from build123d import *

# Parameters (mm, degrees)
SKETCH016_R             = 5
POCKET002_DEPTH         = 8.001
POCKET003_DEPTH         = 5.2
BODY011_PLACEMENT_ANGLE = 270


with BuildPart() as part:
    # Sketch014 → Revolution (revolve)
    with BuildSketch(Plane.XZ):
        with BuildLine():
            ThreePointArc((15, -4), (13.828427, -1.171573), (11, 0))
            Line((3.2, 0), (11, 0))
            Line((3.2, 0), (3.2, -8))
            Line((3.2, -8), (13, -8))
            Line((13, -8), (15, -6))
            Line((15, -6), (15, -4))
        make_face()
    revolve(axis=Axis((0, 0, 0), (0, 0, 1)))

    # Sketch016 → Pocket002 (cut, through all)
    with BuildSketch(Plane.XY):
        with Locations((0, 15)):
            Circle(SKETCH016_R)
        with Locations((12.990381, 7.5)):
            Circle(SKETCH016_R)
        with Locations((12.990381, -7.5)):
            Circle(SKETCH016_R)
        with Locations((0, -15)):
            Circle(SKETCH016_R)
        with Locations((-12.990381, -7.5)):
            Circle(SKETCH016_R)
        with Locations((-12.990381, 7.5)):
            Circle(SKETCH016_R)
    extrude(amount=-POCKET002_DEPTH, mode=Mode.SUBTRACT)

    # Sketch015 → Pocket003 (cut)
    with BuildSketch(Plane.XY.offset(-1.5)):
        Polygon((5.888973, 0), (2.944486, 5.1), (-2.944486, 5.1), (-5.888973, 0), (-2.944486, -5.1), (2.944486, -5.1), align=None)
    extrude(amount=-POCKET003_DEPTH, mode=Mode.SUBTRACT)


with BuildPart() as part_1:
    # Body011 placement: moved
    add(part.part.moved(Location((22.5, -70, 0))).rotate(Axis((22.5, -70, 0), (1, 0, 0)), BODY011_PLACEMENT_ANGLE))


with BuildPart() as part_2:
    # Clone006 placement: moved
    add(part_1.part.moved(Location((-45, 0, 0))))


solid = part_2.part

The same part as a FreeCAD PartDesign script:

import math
import FreeCAD as App
import Part
import Sketcher
Q = App.Units.Quantity


def add_polygon(sketch, points):
    """Adds a closed chain of lines whose ends are joined by coincident constraints."""
    first, n = sketch.GeometryCount, len(points)
    for a, b in zip(points, points[1:] + points[:1]):
        sketch.addGeometry(Part.LineSegment(App.Vector(*a, 0), App.Vector(*b, 0)), False)
    for i in range(n):
        sketch.addConstraint(Sketcher.Constraint("Coincident", first + i, 2, first + (i + 1) % n, 1))

doc = App.newDocument("Part")
body = doc.addObject("PartDesign::Body", "Body")

sketch1 = body.newObject("Sketcher::SketchObject", "Sketch")
sketch1.AttachmentSupport = (doc.getObject("XZ_Plane"), [""])
sketch1.MapMode = "FlatFace"
sketch1.addGeometry([
    Part.ArcOfCircle(Part.Circle(App.Vector(11, -4, 0), App.Vector(0, 0, 1), 4), math.radians(0), math.radians(90)),
    Part.LineSegment(App.Vector(11, 0, 0), App.Vector(3.2, 0, 0)),
    Part.LineSegment(App.Vector(3.2, 0, 0), App.Vector(3.2, -8, 0)),
    Part.LineSegment(App.Vector(3.2, -8, 0), App.Vector(13, -8, 0)),
    Part.LineSegment(App.Vector(13, -8, 0), App.Vector(15, -6, 0)),
    Part.LineSegment(App.Vector(15, -6, 0), App.Vector(15, -4, 0)),
], False)
sketch1.addConstraint([
    Sketcher.Constraint("Tangent", 0, 2, 1, 1),
    Sketcher.Constraint("Coincident", 1, 2, 2, 1),
    Sketcher.Constraint("Coincident", 2, 2, 3, 1),
    Sketcher.Constraint("Coincident", 3, 2, 4, 1),
    Sketcher.Constraint("Coincident", 4, 2, 5, 1),
    Sketcher.Constraint("Tangent", 5, 2, 0, 1),
    Sketcher.Constraint("Horizontal", 1),
    Sketcher.Constraint("Vertical", 2),
    Sketcher.Constraint("Horizontal", 3),
    Sketcher.Constraint("Vertical", 5),
    Sketcher.Constraint("PointOnObject", 0, 2, -1),
    Sketcher.Constraint("Radius", 0, 4.0),
    Sketcher.Constraint("DistanceY", 2, 2, 2, 1, 8.0),
    Sketcher.Constraint("DistanceY", 5, 1, 5, 2, 2.0),
    Sketcher.Constraint("Angle", 4, Q("45 deg")),
    Sketcher.Constraint("DistanceX", 1, 2, 1, 1, 7.8),
    Sketcher.Constraint("DistanceX", -1, 1, 0, 3, 11.0),
])
revolution = body.newObject("PartDesign::Revolution", "Revolution")
revolution.Profile = sketch1
revolution.ReferenceAxis = (sketch1, ["V_Axis"])
revolution.Angle = 360

sketch2 = body.newObject("Sketcher::SketchObject", "Sketch001")
sketch2.AttachmentSupport = (doc.getObject("XY_Plane"), [""])
sketch2.MapMode = "FlatFace"
sketch2.addGeometry([
    Part.Circle(App.Vector(0, 15, 0), App.Vector(0, 0, 1), 5),
    Part.Circle(App.Vector(13, 8, 0), App.Vector(0, 0, 1), 5),
    Part.Circle(App.Vector(13, -8, 0), App.Vector(0, 0, 1), 5),
    Part.Circle(App.Vector(0, -15, 0), App.Vector(0, 0, 1), 5),
    Part.Circle(App.Vector(-13, -8, 0), App.Vector(0, 0, 1), 5),
    Part.Circle(App.Vector(-13, 8, 0), App.Vector(0, 0, 1), 5),
], False)
sketch2.addConstraint([
    Sketcher.Constraint("Equal", 0, 1),
    Sketcher.Constraint("Equal", 1, 2),
    Sketcher.Constraint("Equal", 2, 3),
    Sketcher.Constraint("Equal", 3, 4),
    Sketcher.Constraint("Equal", 4, 5),
    Sketcher.Constraint("Symmetric", 0, 3, 3, 3, -1, 1),
    Sketcher.Constraint("Symmetric", 1, 3, 4, 3, -1, 1),
    Sketcher.Constraint("Symmetric", 2, 3, 5, 3, -1, 1),
    Sketcher.Constraint("Symmetric", 2, 3, 4, 3, -2),
    Sketcher.Constraint("PointOnObject", 0, 3, -2),
    Sketcher.Constraint("Diameter", 0, 10.0),
    Sketcher.Constraint("DistanceY", -1, 1, 0, 3, 15.0),
    Sketcher.Constraint("DistanceY", 2, 3, 1, 3, 15.0),
    Sketcher.Constraint("DistanceX", -1, 1, 1, 3, 12.990381),
])
pocket1 = body.newObject("PartDesign::Pocket", "Pocket")
pocket1.Profile = sketch2
pocket1.Type = "ThroughAll"

sketch3 = body.newObject("Sketcher::SketchObject", "Sketch002")
sketch3.AttachmentSupport = (doc.getObject("XY_Plane"), [""])
sketch3.MapMode = "FlatFace"
sketch3.AttachmentOffset = App.Placement(App.Vector(0, 0, -1.5), App.Rotation())
add_polygon(sketch3, [(6, 0), (3, 5), (-3, 5), (-6, 0), (-3, -5), (3, -5)])
sketch3.addConstraint([
    Sketcher.Constraint("Horizontal", 1),
    Sketcher.Constraint("Horizontal", 4),
    Sketcher.Constraint("Symmetric", 0, 2, 3, 2, -1, 1),
    Sketcher.Constraint("Symmetric", 2, 2, 5, 2, -1, 1),
    Sketcher.Constraint("PointOnObject", 2, 2, -1),
    Sketcher.Constraint("Parallel", 2, 5),
    Sketcher.Constraint("Vertical", 1, 2, 3, 2),
    Sketcher.Constraint("Angle", 0, Q("120.000005 deg")),
    Sketcher.Constraint("DistanceY", -1, 1, 0, 2, 5.1),
    Sketcher.Constraint("DistanceX", 1, 2, 1, 1, 5.888972),
])
pocket2 = body.newObject("PartDesign::Pocket", "Pocket001")
pocket2.Profile = sketch3
pocket2.Length = 5.2
body2 = doc.addObject("PartDesign::Body", "Body001")
doc.recompute()

body.Placement = App.Placement(App.Vector(22.5, -70, 0), App.Rotation(App.Vector(1, 0, 0), 270))
boolean = body2.newObject("PartDesign::Boolean", "Boolean")
boolean.Type = "Fuse"
boolean.addObjects([body])
body3 = doc.addObject("PartDesign::Body", "Body002")
doc.recompute()

body2.Placement = App.Placement(App.Vector(-45, 0, 0), App.Rotation(App.Vector(0, 0, 1), 0))
boolean2 = body3.newObject("PartDesign::Boolean", "Boolean001")
boolean2.Type = "Fuse"
boolean2.addObjects([body2])

doc.recompute()
